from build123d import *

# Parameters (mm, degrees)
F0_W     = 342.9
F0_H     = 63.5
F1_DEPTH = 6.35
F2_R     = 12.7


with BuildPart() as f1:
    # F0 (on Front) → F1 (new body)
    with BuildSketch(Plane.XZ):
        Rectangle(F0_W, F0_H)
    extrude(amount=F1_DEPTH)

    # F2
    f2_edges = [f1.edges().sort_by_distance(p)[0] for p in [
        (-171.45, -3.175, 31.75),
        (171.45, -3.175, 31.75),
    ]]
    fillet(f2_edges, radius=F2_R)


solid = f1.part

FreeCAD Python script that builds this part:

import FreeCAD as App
import Part
import Sketcher
from FreeCAD import Vector
Q = App.Units.Quantity


def edges_at(feature, points):
    """Names of the edges that pass closest to the given points."""
    edges = feature.Shape.Edges
    near = lambda p: min(range(len(edges)), key=lambda i: edges[i].distToShape(Part.Vertex(*p))[0])
    return sorted({f"Edge{near(p) + 1}" for p in points})


def add_polygon(sketch, points):
    """Adds a closed chain of lines whose ends are joined by coincident constraints."""
    first, n = sketch.GeometryCount, len(points)
    for a, b in zip(points, points[1:] + points[:1]):
        sketch.addGeometry(Part.LineSegment(App.Vector(*a, 0), App.Vector(*b, 0)), False)
    for i in range(n):
        sketch.addConstraint(Sketcher.Constraint("Coincident", first + i, 2, first + (i + 1) % n, 1))

doc = App.newDocument("Part")
body = doc.addObject("PartDesign::Body", "Body")

# Sketch on XZ plane
sketch1 = doc.addObject("Sketcher::SketchObject", "Sketch")
body.addObject(sketch1)
sketch1.AttachmentSupport = (doc.XZ_Plane, [""])
sketch1.MapMode = "FlatFace"
add_polygon(sketch1, [(-171, 32), (-171, -32), (171, -32), (171, 32)])  # lines 0-3
sketch1.addConstraint([
    Sketcher.Constraint("Vertical", 0),
    Sketcher.Constraint("Horizontal", 1),
    Sketcher.Constraint("Vertical", 2),
    Sketcher.Constraint("Horizontal", 3),
    Sketcher.Constraint("Symmetric", 0, 2, 2, 2, -1, 1),
    Sketcher.Constraint("DistanceX", 1, 1, 1, 2, Q("13.5 in")),
    Sketcher.Constraint("DistanceY", 0, 2, 0, 1, Q("2.5 in")),
])
pad1 = doc.addObject("PartDesign::Pad", "Pad")
body.addObject(pad1)
pad1.Profile = sketch1
pad1.Length = Q("0.25 in")
doc.recompute()

fillet = doc.addObject("PartDesign::Fillet", "Fillet")
body.addObject(fillet)
fillet.Base = (pad1, edges_at(pad1, [(-171.45, -3.175, 31.75), (171.45, -3.175, 31.75)]))
fillet.Radius = Q("0.5 in")

doc.recompute()
